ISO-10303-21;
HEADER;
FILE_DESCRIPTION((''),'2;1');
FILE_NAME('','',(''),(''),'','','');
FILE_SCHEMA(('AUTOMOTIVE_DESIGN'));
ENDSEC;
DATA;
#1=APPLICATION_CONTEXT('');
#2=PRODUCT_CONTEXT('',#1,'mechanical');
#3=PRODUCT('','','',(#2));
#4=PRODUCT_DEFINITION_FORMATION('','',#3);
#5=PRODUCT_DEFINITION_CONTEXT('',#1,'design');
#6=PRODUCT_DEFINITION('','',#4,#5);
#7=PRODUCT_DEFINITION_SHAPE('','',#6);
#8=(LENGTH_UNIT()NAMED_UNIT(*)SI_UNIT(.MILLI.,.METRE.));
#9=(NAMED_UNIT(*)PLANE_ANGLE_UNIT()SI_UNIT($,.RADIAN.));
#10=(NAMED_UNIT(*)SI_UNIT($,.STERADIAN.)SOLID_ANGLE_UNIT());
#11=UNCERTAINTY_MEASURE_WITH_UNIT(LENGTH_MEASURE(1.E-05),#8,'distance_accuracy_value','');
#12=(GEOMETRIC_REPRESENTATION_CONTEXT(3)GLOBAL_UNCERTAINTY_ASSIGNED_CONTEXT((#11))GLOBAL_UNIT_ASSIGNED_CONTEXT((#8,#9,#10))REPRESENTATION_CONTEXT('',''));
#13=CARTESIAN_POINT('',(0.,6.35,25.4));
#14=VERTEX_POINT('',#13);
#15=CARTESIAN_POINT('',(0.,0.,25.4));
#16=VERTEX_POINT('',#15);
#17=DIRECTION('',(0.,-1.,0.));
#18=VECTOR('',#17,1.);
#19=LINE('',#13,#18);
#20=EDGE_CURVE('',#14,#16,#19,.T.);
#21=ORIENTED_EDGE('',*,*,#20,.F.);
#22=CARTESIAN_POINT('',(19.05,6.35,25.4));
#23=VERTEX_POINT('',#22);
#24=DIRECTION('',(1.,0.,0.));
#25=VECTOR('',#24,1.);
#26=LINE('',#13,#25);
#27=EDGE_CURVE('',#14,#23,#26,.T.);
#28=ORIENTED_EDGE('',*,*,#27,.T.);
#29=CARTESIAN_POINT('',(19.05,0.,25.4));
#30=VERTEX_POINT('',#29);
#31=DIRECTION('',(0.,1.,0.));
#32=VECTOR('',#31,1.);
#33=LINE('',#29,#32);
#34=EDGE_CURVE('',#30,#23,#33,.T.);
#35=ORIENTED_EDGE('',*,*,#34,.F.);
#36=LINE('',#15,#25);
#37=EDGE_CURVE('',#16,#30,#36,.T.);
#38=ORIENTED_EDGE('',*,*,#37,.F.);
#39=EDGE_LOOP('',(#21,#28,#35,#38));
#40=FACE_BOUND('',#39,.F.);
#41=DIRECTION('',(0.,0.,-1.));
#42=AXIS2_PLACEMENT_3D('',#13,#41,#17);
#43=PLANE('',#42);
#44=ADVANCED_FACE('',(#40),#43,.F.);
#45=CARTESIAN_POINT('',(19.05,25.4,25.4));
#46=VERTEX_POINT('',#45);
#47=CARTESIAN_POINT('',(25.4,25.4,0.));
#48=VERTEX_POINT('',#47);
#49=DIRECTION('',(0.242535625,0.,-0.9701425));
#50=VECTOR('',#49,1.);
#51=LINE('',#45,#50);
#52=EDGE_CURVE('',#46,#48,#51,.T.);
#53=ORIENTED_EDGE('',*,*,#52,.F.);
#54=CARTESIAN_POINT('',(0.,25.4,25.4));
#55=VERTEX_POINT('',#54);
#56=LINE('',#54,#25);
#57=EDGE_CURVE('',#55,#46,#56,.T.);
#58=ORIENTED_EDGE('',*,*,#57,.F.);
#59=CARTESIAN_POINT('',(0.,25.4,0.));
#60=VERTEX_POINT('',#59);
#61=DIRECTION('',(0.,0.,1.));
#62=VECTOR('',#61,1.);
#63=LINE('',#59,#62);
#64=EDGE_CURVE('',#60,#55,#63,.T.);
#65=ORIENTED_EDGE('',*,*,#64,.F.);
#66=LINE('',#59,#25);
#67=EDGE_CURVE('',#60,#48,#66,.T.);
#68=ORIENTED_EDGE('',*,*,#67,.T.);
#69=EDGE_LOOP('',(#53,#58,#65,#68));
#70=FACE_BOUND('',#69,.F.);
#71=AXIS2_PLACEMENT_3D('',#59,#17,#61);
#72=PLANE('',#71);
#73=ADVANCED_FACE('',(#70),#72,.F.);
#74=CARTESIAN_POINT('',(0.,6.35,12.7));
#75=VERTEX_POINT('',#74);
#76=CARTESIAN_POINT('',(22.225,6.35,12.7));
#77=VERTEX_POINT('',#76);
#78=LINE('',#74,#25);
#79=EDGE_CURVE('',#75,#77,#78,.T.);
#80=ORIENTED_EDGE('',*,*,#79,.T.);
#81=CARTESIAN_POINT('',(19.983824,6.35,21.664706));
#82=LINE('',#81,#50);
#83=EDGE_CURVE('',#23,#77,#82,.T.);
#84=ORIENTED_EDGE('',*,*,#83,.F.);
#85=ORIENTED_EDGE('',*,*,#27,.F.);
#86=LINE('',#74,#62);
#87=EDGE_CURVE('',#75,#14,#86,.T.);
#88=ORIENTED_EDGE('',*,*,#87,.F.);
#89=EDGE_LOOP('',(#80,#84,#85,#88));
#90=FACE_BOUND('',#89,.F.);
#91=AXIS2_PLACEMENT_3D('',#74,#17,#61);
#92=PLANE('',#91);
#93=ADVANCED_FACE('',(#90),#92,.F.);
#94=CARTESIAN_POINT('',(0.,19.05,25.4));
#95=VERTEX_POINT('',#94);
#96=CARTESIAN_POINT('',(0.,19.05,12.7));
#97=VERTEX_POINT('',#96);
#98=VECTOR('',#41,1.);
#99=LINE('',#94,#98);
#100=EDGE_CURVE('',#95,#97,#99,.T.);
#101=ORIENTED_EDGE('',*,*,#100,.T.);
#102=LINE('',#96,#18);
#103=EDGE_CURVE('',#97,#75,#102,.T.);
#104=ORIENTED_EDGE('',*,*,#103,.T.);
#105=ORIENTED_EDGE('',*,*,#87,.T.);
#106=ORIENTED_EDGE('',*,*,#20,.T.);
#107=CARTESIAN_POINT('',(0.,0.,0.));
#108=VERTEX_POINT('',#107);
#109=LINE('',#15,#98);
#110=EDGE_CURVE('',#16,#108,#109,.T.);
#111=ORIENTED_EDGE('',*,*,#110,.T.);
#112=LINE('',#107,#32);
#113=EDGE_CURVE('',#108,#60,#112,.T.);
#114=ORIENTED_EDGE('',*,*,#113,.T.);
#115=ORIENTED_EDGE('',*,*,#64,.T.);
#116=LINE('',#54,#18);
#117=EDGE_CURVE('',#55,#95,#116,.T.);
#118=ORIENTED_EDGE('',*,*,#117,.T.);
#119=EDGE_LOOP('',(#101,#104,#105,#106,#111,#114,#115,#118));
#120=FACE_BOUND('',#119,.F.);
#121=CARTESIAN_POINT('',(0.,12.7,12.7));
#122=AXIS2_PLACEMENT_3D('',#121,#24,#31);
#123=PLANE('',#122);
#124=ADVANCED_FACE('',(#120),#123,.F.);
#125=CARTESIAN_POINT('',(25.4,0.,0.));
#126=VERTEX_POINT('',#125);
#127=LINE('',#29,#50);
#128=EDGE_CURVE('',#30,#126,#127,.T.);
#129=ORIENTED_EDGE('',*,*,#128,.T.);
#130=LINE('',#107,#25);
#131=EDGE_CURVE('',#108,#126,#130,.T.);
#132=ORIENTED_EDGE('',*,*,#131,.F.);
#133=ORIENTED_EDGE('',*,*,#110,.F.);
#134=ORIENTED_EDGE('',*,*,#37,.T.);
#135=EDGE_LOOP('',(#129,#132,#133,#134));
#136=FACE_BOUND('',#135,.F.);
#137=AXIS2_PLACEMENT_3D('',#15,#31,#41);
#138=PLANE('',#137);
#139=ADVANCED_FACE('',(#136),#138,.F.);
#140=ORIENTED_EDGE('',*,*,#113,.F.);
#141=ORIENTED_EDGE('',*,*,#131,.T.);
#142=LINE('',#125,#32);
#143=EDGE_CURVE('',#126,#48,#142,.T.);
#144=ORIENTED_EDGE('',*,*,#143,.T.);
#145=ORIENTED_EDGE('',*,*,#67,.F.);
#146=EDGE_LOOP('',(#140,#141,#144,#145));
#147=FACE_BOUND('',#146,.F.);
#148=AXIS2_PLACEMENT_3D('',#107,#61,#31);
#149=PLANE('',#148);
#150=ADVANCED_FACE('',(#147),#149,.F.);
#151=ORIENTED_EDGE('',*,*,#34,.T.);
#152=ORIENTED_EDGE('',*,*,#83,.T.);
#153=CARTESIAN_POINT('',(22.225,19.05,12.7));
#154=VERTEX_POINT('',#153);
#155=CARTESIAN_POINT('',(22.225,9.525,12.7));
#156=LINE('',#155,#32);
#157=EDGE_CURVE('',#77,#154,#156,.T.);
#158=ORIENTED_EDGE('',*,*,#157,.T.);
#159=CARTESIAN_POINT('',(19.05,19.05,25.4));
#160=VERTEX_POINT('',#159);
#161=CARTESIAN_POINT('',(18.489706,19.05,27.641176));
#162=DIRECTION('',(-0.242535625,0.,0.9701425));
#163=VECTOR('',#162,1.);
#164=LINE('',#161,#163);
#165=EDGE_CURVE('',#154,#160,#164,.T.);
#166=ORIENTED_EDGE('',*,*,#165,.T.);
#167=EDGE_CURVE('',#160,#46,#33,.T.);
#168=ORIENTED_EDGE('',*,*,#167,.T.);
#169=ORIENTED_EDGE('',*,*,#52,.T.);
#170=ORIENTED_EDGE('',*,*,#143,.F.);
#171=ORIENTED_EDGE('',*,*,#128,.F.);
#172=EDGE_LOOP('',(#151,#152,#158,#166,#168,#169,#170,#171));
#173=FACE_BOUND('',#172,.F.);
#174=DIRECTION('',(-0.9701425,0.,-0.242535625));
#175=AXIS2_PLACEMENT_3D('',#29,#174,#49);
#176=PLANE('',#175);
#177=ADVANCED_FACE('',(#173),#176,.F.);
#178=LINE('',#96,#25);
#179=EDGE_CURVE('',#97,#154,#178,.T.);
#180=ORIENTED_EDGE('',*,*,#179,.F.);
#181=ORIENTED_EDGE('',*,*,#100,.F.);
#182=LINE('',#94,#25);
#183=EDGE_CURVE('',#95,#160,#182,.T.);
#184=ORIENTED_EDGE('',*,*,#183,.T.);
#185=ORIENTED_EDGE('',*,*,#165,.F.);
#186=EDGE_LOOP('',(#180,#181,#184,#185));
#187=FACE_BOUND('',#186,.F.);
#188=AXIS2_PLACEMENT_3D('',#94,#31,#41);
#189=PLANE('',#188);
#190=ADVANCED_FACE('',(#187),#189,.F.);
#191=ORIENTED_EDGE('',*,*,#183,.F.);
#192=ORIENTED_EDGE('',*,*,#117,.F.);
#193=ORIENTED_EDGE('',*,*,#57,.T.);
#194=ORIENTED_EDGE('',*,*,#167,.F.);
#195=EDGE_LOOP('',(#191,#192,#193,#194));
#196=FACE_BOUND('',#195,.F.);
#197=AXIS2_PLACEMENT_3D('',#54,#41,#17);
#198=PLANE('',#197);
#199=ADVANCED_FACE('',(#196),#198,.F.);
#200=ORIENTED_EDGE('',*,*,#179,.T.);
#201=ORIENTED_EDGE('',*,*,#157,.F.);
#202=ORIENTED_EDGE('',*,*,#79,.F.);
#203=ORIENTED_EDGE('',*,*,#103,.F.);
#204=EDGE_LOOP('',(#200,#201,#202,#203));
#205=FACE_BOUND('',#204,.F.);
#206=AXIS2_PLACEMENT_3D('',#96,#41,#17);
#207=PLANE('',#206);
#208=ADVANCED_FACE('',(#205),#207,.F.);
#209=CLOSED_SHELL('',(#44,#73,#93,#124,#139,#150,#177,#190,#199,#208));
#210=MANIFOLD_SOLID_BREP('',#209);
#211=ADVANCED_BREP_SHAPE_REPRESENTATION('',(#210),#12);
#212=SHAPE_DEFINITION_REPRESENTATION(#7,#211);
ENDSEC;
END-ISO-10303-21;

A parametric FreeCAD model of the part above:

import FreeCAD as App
import Part
import Sketcher

V = App.Vector
Q = App.Units.Quantity


def add_polygon(sketch, points):
    """Adds a closed chain of lines whose ends are joined by coincident constraints."""
    first, n = sketch.GeometryCount, len(points)
    for a, b in zip(points, points[1:] + points[:1]):
        sketch.addGeometry(Part.LineSegment(App.Vector(*a, 0), App.Vector(*b, 0)), False)
    for i in range(n):
        sketch.addConstraint(Sketcher.Constraint("Coincident", first + i, 2, first + (i + 1) % n, 1))

doc = App.newDocument("Part")
body = doc.addObject("PartDesign::Body", "Body")

sketch1 = doc.addObject("Sketcher::SketchObject", "Sketch")
body.addObject(sketch1)
sketch1.AttachmentSupport = (doc.YZ_Plane, [""])
sketch1.MapMode = "FlatFace"
add_polygon(sketch1, [(0, 25), (0, 0), (25, 0), (25, 25), (19, 25), (19, 13), (6, 13), (6, 25)])
sketch1.addConstraint([
    Sketcher.Constraint("Vertical", 0),
    Sketcher.Constraint("Horizontal", 1),
    Sketcher.Constraint("Vertical", 2),
    Sketcher.Constraint("Horizontal", 3),
    Sketcher.Constraint("Vertical", 4),
    Sketcher.Constraint("Horizontal", 5),
    Sketcher.Constraint("Vertical", 6),
    Sketcher.Constraint("Horizontal", 7),
    Sketcher.Constraint("Coincident", 0, 2, -1, 1),
    Sketcher.Constraint("Horizontal", 3, 2, 6, 2),
    Sketcher.Constraint("Equal", 3, 7),
    Sketcher.Constraint("Equal", 1, 0),
    Sketcher.Constraint("Equal", 5, 4),
    Sketcher.Constraint("DistanceX", 1, 1, 1, 2, Q("1 in")),
    Sketcher.Constraint("DistanceX", 5, 2, 5, 1, Q("0.5 in")),
])
pad1 = doc.addObject("PartDesign::Pad", "Pad")
body.addObject(pad1)
pad1.Profile = sketch1
pad1.Length = Q("1 in")

sketch2 = doc.addObject("Sketcher::SketchObject", "Sketch001")
body.addObject(sketch2)
sketch2.AttachmentSupport = (doc.XZ_Plane, [""])
sketch2.MapMode = "FlatFace"
add_polygon(sketch2, [(25, 25), (19, 25), (25, 0)])
sketch2.addConstraint([
    Sketcher.Constraint("Horizontal", 0),
    Sketcher.Constraint("Vertical", 2),
    Sketcher.Constraint("PointOnObject", 1, 2, -1),
    Sketcher.Constraint("DistanceY", 2, 1, 2, 2, Q("1 in")),
    Sketcher.Constraint("DistanceX", -1, 1, 1, 2, Q("1 in")),
    Sketcher.Constraint("DistanceX", 0, 2, 0, 1, Q("0.25 in")),
])
pocket1 = doc.addObject("PartDesign::Pocket", "Pocket")
body.addObject(pocket1)
pocket1.Profile = sketch2
pocket1.Length = Q("1 in")

doc.recompute()
